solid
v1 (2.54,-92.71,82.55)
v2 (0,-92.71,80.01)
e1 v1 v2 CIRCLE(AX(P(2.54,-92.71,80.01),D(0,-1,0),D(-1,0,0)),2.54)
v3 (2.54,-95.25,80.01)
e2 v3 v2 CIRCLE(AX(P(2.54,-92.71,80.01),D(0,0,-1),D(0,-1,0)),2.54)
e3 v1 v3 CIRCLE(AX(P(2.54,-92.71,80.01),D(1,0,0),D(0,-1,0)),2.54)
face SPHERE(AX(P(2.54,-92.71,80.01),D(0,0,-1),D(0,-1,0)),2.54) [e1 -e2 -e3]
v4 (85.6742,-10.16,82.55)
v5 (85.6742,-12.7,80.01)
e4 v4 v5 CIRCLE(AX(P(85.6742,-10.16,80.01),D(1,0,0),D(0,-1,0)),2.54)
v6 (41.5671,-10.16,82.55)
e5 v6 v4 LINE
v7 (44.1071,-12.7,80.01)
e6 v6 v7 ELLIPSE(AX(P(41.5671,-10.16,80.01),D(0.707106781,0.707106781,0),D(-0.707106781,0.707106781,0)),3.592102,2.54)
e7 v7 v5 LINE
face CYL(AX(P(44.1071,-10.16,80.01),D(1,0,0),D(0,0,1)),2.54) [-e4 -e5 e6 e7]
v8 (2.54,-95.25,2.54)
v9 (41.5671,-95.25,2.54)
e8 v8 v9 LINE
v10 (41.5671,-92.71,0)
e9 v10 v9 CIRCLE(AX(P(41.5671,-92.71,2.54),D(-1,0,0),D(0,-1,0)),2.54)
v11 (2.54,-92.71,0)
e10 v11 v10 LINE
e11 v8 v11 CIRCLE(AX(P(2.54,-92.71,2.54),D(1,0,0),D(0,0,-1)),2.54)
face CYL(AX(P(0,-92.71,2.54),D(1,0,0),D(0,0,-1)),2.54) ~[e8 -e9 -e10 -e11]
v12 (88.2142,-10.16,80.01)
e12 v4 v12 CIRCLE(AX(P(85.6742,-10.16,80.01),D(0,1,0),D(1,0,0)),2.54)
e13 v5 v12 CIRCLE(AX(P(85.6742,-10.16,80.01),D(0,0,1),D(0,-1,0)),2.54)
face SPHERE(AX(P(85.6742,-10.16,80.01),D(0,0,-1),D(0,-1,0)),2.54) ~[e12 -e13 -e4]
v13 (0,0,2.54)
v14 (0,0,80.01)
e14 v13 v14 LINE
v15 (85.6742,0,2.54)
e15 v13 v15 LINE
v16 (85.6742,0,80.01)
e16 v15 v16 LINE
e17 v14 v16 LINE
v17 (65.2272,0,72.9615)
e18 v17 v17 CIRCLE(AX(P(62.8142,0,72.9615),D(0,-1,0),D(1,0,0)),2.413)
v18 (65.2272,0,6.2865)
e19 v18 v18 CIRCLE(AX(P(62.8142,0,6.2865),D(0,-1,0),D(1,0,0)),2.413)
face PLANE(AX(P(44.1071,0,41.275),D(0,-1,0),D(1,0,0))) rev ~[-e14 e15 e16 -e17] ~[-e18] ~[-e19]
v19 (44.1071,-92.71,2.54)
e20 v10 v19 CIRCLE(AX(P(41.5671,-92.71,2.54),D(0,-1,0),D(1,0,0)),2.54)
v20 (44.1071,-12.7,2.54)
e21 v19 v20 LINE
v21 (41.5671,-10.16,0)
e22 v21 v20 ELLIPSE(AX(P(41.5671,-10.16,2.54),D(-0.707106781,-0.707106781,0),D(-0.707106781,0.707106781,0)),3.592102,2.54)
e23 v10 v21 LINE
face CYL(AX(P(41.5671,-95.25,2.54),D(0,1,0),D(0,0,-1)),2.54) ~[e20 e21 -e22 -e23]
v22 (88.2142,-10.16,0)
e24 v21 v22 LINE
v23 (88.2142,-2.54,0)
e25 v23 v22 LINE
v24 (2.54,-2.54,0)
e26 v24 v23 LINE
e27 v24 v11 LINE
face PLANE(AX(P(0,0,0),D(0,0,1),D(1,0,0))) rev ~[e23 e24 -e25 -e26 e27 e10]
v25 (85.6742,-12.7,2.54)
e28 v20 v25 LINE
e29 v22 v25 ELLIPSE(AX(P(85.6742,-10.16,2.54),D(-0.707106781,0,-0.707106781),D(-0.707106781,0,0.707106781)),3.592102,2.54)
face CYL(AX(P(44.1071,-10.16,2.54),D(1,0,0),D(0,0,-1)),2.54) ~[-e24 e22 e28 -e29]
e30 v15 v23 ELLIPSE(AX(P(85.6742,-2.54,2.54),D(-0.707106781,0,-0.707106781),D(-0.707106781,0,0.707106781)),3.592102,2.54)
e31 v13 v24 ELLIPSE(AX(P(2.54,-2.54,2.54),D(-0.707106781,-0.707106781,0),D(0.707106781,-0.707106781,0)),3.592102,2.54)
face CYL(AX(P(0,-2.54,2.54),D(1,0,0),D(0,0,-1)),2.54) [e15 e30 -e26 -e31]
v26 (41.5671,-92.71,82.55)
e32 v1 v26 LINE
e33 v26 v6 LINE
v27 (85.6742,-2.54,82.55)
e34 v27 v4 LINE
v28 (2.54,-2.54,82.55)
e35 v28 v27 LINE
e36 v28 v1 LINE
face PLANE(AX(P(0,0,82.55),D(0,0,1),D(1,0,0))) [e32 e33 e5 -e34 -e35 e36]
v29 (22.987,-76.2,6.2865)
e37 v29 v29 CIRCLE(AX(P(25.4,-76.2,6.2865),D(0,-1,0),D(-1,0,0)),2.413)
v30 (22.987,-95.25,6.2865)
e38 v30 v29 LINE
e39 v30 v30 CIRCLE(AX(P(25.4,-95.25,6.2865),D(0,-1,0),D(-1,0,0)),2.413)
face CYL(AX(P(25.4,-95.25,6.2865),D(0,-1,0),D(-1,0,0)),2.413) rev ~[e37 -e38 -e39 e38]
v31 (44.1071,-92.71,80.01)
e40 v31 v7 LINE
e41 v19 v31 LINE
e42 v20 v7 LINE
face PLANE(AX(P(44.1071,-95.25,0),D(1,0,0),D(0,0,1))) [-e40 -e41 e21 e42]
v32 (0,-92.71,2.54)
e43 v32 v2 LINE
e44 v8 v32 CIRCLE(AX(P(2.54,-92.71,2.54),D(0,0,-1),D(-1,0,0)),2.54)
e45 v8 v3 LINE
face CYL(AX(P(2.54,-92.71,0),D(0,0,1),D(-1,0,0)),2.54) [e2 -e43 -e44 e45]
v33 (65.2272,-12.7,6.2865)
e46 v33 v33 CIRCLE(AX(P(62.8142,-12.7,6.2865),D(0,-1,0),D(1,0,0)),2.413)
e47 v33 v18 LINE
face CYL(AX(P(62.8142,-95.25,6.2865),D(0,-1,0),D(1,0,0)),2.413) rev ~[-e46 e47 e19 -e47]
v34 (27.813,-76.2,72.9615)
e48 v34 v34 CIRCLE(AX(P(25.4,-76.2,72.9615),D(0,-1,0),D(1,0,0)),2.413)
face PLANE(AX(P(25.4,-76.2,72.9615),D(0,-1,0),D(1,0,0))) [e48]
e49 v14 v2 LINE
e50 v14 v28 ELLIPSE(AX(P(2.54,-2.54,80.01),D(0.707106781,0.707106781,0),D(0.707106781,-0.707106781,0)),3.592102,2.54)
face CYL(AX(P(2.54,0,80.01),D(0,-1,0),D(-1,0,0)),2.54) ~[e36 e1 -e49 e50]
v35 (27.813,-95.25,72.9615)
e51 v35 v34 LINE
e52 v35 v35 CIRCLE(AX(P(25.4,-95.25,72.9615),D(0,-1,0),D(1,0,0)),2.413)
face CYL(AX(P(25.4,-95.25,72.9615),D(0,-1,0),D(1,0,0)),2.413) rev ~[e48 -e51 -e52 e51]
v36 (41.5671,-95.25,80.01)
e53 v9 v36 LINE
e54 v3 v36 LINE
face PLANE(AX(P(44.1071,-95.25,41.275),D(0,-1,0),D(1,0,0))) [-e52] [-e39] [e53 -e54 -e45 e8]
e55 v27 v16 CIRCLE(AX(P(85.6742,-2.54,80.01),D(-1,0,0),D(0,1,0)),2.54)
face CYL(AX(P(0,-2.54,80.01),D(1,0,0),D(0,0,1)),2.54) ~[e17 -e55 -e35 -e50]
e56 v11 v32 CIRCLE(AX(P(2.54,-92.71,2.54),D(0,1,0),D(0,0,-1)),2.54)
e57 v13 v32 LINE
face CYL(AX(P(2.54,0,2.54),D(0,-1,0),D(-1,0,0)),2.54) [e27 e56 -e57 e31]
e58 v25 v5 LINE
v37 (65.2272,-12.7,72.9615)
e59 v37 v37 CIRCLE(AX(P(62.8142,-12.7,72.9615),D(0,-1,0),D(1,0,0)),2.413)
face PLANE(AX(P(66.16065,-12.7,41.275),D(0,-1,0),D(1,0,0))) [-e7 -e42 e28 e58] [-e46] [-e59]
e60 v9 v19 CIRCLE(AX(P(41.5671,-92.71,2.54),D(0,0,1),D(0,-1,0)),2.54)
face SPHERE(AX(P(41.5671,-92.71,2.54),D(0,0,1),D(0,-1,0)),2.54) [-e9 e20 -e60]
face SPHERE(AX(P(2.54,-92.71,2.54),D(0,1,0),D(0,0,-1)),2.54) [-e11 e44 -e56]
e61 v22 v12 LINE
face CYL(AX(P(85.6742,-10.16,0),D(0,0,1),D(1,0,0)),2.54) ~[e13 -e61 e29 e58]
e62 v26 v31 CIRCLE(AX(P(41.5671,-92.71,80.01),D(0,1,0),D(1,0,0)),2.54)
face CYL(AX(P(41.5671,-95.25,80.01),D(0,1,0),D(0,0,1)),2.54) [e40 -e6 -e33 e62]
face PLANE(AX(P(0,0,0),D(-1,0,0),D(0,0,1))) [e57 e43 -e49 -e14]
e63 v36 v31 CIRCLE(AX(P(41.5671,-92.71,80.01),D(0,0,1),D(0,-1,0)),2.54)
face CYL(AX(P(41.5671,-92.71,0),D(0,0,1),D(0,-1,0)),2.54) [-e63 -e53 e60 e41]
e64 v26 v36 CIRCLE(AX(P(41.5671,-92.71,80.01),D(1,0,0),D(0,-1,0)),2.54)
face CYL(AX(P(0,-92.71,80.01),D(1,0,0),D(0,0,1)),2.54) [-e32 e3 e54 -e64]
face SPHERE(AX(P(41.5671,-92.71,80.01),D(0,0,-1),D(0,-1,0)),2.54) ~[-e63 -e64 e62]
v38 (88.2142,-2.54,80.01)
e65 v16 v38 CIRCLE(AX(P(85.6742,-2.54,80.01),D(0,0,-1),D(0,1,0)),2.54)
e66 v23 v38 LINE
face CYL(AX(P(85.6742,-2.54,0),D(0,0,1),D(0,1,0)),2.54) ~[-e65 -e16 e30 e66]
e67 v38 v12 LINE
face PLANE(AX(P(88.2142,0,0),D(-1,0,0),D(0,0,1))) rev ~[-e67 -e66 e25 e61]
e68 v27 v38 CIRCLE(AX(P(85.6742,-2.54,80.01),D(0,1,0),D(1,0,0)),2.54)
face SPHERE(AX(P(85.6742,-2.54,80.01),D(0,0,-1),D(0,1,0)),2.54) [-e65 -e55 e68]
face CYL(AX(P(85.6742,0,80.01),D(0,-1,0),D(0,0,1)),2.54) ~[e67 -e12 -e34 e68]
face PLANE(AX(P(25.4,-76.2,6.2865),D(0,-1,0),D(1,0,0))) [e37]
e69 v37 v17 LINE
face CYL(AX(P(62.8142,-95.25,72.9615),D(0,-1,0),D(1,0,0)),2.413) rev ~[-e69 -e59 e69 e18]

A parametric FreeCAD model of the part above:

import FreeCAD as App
import Part
import Sketcher
from FreeCAD import Vector
Q = App.Units.Quantity


def edges_at(feature, points):
    """Names of the edges that pass closest to the given points."""
    edges = feature.Shape.Edges
    near = lambda p: min(range(len(edges)), key=lambda i: edges[i].distToShape(Part.Vertex(*p))[0])
    return sorted({f"Edge{near(p) + 1}" for p in points})

doc = App.newDocument("Part")
body = doc.addObject("PartDesign::Body", "Body")

# Sketch on XZ plane
sketch1 = body.newObject("Sketcher::SketchObject", "Sketch")
sketch1.AttachmentSupport = (doc.getObject("XZ_Plane"), [""])
sketch1.MapMode = "FlatFace"
sketch1.addGeometry([
    Part.LineSegment(Vector(0, 83, 0), Vector(0, 0, 0)),
    Part.LineSegment(Vector(0, 0, 0), Vector(88, 0, 0)),
    Part.LineSegment(Vector(88, 0, 0), Vector(88, 83, 0)),
    Part.LineSegment(Vector(88, 83, 0), Vector(0, 83, 0)),
], False)
sketch1.addConstraint([
    Sketcher.Constraint("Coincident", 0, 2, 1, 1),
    Sketcher.Constraint("Coincident", 1, 2, 2, 1),
    Sketcher.Constraint("Coincident", 2, 2, 3, 1),
    Sketcher.Constraint("Coincident", 3, 2, 0, 1),
    Sketcher.Constraint("Vertical", 0),
    Sketcher.Constraint("Horizontal", 1),
    Sketcher.Constraint("Vertical", 2),
    Sketcher.Constraint("Horizontal", 3),
    Sketcher.Constraint("Coincident", 0, 2, -1, 1),
    Sketcher.Constraint("DistanceY", 0, 2, 0, 1, Q("3.25 in")),
    Sketcher.Constraint("DistanceX", 1, 1, 1, 2, Q("3.473 in")),
])
pad1 = body.newObject("PartDesign::Pad", "Pad")
pad1.Profile = sketch1
pad1.Length = Q("3.75 in")

# Sketch on XZ plane
sketch2 = body.newObject("Sketcher::SketchObject", "Sketch001")
sketch2.AttachmentSupport = (doc.getObject("XZ_Plane"), [""])
sketch2.MapMode = "FlatFace"
sketch2.AttachmentOffset = App.Placement(Vector(0, 0, 3.75 * 25.4), App.Rotation())
sketch2.addGeometry([
    Part.LineSegment(Vector(44, 83, 0), Vector(44, 0, 0)),
    Part.LineSegment(Vector(44, 0, 0), Vector(88, 0, 0)),
    Part.LineSegment(Vector(88, 0, 0), Vector(88, 83, 0)),
    Part.LineSegment(Vector(88, 83, 0), Vector(44, 83, 0)),
], False)
sketch2.addConstraint([
    Sketcher.Constraint("Coincident", 0, 2, 1, 1),
    Sketcher.Constraint("Coincident", 1, 2, 2, 1),
    Sketcher.Constraint("Coincident", 2, 2, 3, 1),
    Sketcher.Constraint("Coincident", 3, 2, 0, 1),
    Sketcher.Constraint("Vertical", 0),
    Sketcher.Constraint("Horizontal", 1),
    Sketcher.Constraint("Vertical", 2),
    Sketcher.Constraint("Horizontal", 3),
    Sketcher.Constraint("PointOnObject", 0, 2, -1),
    Sketcher.Constraint("DistanceY", 0, 2, 0, 1, Q("3.25 in")),
    Sketcher.Constraint("DistanceX", 1, 1, 1, 2, Q("1.7365 in")),
    Sketcher.Constraint("DistanceX", -1, 1, 1, 2, Q("3.473 in")),
])
pocket1 = body.newObject("PartDesign::Pocket", "Pocket")
pocket1.Profile = sketch2
pocket1.Length = Q("3.25 in")
doc.recompute()

fillet = body.newObject("PartDesign::Fillet", "Fillet")
fillet.Base = (pocket1, edges_at(pocket1, [
    (44.107, -95.25, 41.275),
    (88.214, 0, 41.275),
    (88.214, -12.7, 41.275),
    (0, -47.625, 0),
    (22.054, -95.25, 0),
    (0, -95.25, 41.275),
    (22.054, -95.25, 82.55),
    (0, -47.625, 82.55),
    (44.107, 0, 82.55),
    (44.107, -53.975, 82.55),
    (66.161, -12.7, 82.55),
    (88.214, -6.35, 82.55),
    (44.107, -53.975, 0),
    (66.161, -12.7, 0),
    (44.107, 0, 0),
]))
fillet.Radius = Q("0.1 in")

# Sketch on XZ plane
sketch3 = body.newObject("Sketcher::SketchObject", "Sketch002")
sketch3.AttachmentSupport = (doc.getObject("XZ_Plane"), [""])
sketch3.MapMode = "FlatFace"
sketch3.AttachmentOffset = App.Placement(Vector(0, 0, 3.75 * 25.4), App.Rotation())
sketch3.addGeometry([
    Part.Circle(Vector(25.4, 6.3, 0), Vector(0, 0, 1), 2.4),
    Part.Circle(Vector(25.4, 73, 0), Vector(0, 0, 1), 2.4),
], False)
sketch3.addConstraint([
    Sketcher.Constraint("Equal", 0, 1),
    Sketcher.Constraint("Vertical", 0, 3, 1, 3),
    Sketcher.Constraint("Diameter", 0, Q("0.19 in")),
    Sketcher.Constraint("DistanceX", -1, 1, 0, 3, Q("1 in")),
    Sketcher.Constraint("DistanceY", 0, 3, 1, 3, Q("2.625 in")),
    Sketcher.Constraint("DistanceY", -1, 1, 0, 3, Q("0.2475 in")),
])
pocket2 = body.newObject("PartDesign::Pocket", "Pocket001")
pocket2.Profile = sketch3
pocket2.Length = Q("0.75 in")

# Sketch on XZ plane
sketch4 = body.newObject("Sketcher::SketchObject", "Sketch003")
sketch4.AttachmentSupport = (doc.getObject("XZ_Plane"), [""])
sketch4.MapMode = "FlatFace"
sketch4.AttachmentOffset = App.Placement(Vector(0, 0, 3.75 * 25.4), App.Rotation())
sketch4.addGeometry([
    Part.Circle(Vector(62.8, 6.3, 0), Vector(0, 0, 1), 2.4),
    Part.Circle(Vector(62.8, 73, 0), Vector(0, 0, 1), 2.4),
], False)
sketch4.addConstraint([
    Sketcher.Constraint("Equal", 0, 1),
    Sketcher.Constraint("Vertical", 0, 3, 1, 3),
    Sketcher.Constraint("Diameter", 0, Q("0.19 in")),
    Sketcher.Constraint("DistanceX", -1, 1, 0, 3, Q("2.473 in")),
    Sketcher.Constraint("DistanceY", 0, 3, 1, 3, Q("2.625 in")),
    Sketcher.Constraint("DistanceY", -1, 1, 0, 3, Q("0.2475 in")),
])
pocket3 = body.newObject("PartDesign::Pocket", "Pocket002")
pocket3.Profile = sketch4
pocket3.Length = Q("5 in")

doc.recompute()
